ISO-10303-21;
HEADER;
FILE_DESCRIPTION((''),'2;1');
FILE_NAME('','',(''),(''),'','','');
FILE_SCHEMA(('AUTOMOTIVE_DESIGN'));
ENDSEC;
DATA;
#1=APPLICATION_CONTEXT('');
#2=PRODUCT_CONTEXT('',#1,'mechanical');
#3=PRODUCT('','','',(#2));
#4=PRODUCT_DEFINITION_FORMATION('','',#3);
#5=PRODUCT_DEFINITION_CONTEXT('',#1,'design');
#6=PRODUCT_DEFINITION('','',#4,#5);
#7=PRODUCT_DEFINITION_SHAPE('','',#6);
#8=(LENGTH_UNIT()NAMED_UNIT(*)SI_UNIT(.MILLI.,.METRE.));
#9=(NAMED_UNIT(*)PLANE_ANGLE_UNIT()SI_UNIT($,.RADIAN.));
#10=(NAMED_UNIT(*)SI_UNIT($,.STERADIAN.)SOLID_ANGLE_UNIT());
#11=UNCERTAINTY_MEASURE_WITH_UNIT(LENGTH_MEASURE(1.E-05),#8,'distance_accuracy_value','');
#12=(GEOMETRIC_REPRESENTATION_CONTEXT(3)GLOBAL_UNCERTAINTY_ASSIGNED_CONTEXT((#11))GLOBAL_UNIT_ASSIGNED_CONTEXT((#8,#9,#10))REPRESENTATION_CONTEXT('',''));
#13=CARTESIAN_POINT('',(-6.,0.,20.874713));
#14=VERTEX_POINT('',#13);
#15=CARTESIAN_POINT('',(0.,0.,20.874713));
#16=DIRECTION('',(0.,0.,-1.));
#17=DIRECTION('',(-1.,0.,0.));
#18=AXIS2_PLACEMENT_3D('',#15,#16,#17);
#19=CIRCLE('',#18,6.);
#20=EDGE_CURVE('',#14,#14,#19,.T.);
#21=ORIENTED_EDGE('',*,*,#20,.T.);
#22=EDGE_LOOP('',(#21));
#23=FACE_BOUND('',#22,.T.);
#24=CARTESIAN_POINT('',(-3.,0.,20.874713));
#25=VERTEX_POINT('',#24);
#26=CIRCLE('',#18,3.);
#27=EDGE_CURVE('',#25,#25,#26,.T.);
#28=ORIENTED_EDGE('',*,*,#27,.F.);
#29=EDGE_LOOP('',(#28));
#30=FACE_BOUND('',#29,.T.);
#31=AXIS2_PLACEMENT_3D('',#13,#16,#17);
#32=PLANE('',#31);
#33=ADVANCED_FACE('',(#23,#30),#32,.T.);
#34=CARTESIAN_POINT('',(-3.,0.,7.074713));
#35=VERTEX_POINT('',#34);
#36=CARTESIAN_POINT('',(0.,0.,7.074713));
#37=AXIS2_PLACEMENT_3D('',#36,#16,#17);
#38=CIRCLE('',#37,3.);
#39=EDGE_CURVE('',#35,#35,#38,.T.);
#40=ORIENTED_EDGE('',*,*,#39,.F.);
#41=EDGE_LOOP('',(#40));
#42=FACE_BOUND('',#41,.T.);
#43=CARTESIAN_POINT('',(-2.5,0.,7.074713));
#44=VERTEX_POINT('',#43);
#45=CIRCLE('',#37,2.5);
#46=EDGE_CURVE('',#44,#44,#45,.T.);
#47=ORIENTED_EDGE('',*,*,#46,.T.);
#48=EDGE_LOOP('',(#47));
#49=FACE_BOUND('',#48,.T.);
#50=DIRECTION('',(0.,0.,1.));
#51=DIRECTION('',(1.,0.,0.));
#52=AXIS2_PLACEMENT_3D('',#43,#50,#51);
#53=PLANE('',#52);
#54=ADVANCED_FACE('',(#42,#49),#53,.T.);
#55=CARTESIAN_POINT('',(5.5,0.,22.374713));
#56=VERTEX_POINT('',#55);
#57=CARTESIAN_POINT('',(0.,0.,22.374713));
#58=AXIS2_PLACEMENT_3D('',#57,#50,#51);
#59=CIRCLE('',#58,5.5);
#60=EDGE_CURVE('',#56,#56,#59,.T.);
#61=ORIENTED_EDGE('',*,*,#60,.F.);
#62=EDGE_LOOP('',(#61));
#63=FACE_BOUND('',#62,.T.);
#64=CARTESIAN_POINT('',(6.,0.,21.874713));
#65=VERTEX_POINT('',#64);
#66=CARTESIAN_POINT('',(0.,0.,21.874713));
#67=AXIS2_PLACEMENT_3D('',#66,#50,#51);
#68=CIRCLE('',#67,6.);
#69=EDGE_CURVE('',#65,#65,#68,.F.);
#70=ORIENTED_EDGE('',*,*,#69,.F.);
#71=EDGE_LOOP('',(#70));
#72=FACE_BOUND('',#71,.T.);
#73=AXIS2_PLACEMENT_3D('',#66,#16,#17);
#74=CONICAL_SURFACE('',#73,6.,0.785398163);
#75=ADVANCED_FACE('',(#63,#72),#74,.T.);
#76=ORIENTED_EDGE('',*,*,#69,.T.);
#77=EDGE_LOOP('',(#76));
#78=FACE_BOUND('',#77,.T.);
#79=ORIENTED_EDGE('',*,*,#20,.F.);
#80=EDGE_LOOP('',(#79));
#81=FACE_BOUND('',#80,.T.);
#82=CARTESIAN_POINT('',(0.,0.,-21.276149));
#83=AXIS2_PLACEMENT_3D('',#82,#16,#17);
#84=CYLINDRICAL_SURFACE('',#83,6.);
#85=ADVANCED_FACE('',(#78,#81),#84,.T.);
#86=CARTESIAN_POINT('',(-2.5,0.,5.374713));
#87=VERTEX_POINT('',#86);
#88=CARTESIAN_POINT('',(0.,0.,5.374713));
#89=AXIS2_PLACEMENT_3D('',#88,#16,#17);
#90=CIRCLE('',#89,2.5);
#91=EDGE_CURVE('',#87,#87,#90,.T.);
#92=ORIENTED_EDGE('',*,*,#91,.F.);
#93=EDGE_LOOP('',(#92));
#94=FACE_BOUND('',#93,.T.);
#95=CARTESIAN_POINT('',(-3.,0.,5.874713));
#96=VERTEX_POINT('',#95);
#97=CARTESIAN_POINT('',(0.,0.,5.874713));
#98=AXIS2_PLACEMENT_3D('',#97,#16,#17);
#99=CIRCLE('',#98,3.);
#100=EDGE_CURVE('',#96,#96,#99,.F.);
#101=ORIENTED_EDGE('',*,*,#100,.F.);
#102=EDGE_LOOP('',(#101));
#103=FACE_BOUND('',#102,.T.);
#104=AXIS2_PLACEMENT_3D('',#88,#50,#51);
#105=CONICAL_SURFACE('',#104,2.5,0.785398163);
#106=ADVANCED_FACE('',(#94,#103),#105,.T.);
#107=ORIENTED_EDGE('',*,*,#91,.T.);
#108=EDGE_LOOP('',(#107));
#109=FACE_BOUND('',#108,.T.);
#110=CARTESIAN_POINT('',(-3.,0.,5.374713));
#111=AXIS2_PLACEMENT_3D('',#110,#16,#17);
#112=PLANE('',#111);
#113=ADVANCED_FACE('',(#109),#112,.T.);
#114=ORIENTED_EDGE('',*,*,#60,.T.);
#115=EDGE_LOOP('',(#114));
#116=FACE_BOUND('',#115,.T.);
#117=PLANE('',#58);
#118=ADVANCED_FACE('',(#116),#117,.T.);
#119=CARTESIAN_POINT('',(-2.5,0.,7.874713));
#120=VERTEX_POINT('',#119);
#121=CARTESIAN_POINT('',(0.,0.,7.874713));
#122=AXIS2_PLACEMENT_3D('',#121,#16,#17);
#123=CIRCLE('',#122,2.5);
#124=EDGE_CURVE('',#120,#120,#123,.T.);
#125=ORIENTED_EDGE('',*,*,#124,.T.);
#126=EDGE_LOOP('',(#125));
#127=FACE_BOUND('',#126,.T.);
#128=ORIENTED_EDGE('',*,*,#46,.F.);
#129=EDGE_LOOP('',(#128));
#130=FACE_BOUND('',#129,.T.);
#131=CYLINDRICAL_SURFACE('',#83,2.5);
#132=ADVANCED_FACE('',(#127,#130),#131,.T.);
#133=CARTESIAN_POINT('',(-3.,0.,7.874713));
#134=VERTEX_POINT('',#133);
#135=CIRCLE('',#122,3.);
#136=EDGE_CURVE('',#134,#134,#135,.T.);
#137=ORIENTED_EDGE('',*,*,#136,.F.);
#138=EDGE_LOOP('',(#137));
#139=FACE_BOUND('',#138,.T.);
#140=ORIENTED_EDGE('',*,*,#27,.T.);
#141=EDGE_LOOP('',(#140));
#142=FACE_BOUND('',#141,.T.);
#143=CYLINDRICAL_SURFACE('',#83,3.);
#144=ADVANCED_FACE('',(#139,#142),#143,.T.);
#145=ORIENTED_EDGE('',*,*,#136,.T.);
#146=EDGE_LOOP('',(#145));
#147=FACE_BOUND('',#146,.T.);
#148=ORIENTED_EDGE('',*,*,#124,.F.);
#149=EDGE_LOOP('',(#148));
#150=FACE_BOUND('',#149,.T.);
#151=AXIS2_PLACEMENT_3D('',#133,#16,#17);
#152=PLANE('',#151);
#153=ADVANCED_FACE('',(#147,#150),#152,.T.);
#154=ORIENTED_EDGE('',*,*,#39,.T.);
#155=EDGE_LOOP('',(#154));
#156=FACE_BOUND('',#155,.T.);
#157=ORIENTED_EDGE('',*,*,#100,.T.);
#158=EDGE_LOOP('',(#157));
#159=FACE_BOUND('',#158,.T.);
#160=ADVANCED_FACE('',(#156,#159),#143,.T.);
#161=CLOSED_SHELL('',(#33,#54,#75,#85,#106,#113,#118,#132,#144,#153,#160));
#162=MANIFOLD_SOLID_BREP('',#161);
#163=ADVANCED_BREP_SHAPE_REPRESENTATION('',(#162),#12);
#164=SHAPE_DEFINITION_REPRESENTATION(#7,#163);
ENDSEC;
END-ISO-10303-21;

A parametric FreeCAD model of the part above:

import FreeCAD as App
import Part
import Sketcher


def edges_at(feature, points):
    """Names of the edges that pass closest to the given points."""
    edges = feature.Shape.Edges
    near = lambda p: min(range(len(edges)), key=lambda i: edges[i].distToShape(Part.Vertex(*p))[0])
    return sorted({f"Edge{near(p) + 1}" for p in points})

doc = App.newDocument("Part")
body = doc.addObject("PartDesign::Body", "Body")

# Sketch on XZ plane
sketch1 = body.newObject("Sketcher::SketchObject", "Sketch")
sketch1.AttachmentSupport = (doc.getObject("XZ_Plane"), [""])
sketch1.MapMode = "FlatFace"
sketch1.addGeometry([
    Part.LineSegment(App.Vector(-6, 22.4, 0), App.Vector(0, 22.4, 0)),  # 0
    Part.LineSegment(App.Vector(0, 22.4, 0), App.Vector(0, 5.4, 0)),  # 1
    Part.LineSegment(App.Vector(0, 5.4, 0), App.Vector(-3, 5.4, 0)),  # 2
    Part.LineSegment(App.Vector(-3, 5.4, 0), App.Vector(-3, 7.1, 0)),  # 3
    Part.LineSegment(App.Vector(-3, 7.1, 0), App.Vector(-2.5, 7.1, 0)),  # 4
    Part.LineSegment(App.Vector(-2.5, 7.1, 0), App.Vector(-2.5, 7.9, 0)),  # 5
    Part.LineSegment(App.Vector(-2.5, 7.9, 0), App.Vector(-3, 7.9, 0)),  # 6
    Part.LineSegment(App.Vector(-3, 7.9, 0), App.Vector(-3, 20.9, 0)),  # 7
    Part.LineSegment(App.Vector(-3, 20.9, 0), App.Vector(-6, 20.9, 0)),  # 8
    Part.LineSegment(App.Vector(-6, 20.9, 0), App.Vector(-6, 22.4, 0)),  # 9
], False)
sketch1.addConstraint([
    Sketcher.Constraint("Coincident", 0, 2, 1, 1),
    Sketcher.Constraint("Coincident", 1, 2, 2, 1),
    Sketcher.Constraint("Coincident", 2, 2, 3, 1),
    Sketcher.Constraint("Coincident", 3, 2, 4, 1),
    Sketcher.Constraint("Coincident", 4, 2, 5, 1),
    Sketcher.Constraint("Coincident", 5, 2, 6, 1),
    Sketcher.Constraint("Coincident", 6, 2, 7, 1),
    Sketcher.Constraint("Coincident", 7, 2, 8, 1),
    Sketcher.Constraint("Coincident", 8, 2, 9, 1),
    Sketcher.Constraint("Coincident", 9, 2, 0, 1),
    Sketcher.Constraint("Horizontal", 0),
    Sketcher.Constraint("Vertical", 1),
    Sketcher.Constraint("Horizontal", 2),
    Sketcher.Constraint("Vertical", 3),
    Sketcher.Constraint("Horizontal", 4),
    Sketcher.Constraint("Vertical", 5),
    Sketcher.Constraint("Horizontal", 6),
    Sketcher.Constraint("Vertical", 7),
    Sketcher.Constraint("Horizontal", 8),
    Sketcher.Constraint("Vertical", 9),
    Sketcher.Constraint("PointOnObject", 0, 2, -2),
    Sketcher.Constraint("Vertical", 3, 2, 6, 2),
    Sketcher.Constraint("Equal", 2, 8),
    Sketcher.Constraint("DistanceX", 0, 1, 0, 2, 6.0),
    Sketcher.Constraint("DistanceY", 1, 2, 1, 1, 17.0),
    Sketcher.Constraint("DistanceY", 7, 1, 7, 2, 13.0),
    Sketcher.Constraint("DistanceX", 4, 1, 4, 2, 0.5),
    Sketcher.Constraint("DistanceY", 3, 1, 3, 2, 1.7),
    Sketcher.Constraint("DistanceY", 5, 1, 5, 2, 0.8),
    Sketcher.Constraint("DistanceY", -1, 1, 0, 2, 22.374713),
])
revolution = body.newObject("PartDesign::Revolution", "Revolution")
revolution.Profile = sketch1
revolution.ReferenceAxis = (sketch1, ["V_Axis"])
revolution.Angle = 360
doc.recompute()

chamfer = body.newObject("PartDesign::Chamfer", "Chamfer")
chamfer.Base = (revolution, edges_at(revolution, [(3, 0, 5.375), (6, 0, 22.375)]))
chamfer.Size = 0.5

doc.recompute()
